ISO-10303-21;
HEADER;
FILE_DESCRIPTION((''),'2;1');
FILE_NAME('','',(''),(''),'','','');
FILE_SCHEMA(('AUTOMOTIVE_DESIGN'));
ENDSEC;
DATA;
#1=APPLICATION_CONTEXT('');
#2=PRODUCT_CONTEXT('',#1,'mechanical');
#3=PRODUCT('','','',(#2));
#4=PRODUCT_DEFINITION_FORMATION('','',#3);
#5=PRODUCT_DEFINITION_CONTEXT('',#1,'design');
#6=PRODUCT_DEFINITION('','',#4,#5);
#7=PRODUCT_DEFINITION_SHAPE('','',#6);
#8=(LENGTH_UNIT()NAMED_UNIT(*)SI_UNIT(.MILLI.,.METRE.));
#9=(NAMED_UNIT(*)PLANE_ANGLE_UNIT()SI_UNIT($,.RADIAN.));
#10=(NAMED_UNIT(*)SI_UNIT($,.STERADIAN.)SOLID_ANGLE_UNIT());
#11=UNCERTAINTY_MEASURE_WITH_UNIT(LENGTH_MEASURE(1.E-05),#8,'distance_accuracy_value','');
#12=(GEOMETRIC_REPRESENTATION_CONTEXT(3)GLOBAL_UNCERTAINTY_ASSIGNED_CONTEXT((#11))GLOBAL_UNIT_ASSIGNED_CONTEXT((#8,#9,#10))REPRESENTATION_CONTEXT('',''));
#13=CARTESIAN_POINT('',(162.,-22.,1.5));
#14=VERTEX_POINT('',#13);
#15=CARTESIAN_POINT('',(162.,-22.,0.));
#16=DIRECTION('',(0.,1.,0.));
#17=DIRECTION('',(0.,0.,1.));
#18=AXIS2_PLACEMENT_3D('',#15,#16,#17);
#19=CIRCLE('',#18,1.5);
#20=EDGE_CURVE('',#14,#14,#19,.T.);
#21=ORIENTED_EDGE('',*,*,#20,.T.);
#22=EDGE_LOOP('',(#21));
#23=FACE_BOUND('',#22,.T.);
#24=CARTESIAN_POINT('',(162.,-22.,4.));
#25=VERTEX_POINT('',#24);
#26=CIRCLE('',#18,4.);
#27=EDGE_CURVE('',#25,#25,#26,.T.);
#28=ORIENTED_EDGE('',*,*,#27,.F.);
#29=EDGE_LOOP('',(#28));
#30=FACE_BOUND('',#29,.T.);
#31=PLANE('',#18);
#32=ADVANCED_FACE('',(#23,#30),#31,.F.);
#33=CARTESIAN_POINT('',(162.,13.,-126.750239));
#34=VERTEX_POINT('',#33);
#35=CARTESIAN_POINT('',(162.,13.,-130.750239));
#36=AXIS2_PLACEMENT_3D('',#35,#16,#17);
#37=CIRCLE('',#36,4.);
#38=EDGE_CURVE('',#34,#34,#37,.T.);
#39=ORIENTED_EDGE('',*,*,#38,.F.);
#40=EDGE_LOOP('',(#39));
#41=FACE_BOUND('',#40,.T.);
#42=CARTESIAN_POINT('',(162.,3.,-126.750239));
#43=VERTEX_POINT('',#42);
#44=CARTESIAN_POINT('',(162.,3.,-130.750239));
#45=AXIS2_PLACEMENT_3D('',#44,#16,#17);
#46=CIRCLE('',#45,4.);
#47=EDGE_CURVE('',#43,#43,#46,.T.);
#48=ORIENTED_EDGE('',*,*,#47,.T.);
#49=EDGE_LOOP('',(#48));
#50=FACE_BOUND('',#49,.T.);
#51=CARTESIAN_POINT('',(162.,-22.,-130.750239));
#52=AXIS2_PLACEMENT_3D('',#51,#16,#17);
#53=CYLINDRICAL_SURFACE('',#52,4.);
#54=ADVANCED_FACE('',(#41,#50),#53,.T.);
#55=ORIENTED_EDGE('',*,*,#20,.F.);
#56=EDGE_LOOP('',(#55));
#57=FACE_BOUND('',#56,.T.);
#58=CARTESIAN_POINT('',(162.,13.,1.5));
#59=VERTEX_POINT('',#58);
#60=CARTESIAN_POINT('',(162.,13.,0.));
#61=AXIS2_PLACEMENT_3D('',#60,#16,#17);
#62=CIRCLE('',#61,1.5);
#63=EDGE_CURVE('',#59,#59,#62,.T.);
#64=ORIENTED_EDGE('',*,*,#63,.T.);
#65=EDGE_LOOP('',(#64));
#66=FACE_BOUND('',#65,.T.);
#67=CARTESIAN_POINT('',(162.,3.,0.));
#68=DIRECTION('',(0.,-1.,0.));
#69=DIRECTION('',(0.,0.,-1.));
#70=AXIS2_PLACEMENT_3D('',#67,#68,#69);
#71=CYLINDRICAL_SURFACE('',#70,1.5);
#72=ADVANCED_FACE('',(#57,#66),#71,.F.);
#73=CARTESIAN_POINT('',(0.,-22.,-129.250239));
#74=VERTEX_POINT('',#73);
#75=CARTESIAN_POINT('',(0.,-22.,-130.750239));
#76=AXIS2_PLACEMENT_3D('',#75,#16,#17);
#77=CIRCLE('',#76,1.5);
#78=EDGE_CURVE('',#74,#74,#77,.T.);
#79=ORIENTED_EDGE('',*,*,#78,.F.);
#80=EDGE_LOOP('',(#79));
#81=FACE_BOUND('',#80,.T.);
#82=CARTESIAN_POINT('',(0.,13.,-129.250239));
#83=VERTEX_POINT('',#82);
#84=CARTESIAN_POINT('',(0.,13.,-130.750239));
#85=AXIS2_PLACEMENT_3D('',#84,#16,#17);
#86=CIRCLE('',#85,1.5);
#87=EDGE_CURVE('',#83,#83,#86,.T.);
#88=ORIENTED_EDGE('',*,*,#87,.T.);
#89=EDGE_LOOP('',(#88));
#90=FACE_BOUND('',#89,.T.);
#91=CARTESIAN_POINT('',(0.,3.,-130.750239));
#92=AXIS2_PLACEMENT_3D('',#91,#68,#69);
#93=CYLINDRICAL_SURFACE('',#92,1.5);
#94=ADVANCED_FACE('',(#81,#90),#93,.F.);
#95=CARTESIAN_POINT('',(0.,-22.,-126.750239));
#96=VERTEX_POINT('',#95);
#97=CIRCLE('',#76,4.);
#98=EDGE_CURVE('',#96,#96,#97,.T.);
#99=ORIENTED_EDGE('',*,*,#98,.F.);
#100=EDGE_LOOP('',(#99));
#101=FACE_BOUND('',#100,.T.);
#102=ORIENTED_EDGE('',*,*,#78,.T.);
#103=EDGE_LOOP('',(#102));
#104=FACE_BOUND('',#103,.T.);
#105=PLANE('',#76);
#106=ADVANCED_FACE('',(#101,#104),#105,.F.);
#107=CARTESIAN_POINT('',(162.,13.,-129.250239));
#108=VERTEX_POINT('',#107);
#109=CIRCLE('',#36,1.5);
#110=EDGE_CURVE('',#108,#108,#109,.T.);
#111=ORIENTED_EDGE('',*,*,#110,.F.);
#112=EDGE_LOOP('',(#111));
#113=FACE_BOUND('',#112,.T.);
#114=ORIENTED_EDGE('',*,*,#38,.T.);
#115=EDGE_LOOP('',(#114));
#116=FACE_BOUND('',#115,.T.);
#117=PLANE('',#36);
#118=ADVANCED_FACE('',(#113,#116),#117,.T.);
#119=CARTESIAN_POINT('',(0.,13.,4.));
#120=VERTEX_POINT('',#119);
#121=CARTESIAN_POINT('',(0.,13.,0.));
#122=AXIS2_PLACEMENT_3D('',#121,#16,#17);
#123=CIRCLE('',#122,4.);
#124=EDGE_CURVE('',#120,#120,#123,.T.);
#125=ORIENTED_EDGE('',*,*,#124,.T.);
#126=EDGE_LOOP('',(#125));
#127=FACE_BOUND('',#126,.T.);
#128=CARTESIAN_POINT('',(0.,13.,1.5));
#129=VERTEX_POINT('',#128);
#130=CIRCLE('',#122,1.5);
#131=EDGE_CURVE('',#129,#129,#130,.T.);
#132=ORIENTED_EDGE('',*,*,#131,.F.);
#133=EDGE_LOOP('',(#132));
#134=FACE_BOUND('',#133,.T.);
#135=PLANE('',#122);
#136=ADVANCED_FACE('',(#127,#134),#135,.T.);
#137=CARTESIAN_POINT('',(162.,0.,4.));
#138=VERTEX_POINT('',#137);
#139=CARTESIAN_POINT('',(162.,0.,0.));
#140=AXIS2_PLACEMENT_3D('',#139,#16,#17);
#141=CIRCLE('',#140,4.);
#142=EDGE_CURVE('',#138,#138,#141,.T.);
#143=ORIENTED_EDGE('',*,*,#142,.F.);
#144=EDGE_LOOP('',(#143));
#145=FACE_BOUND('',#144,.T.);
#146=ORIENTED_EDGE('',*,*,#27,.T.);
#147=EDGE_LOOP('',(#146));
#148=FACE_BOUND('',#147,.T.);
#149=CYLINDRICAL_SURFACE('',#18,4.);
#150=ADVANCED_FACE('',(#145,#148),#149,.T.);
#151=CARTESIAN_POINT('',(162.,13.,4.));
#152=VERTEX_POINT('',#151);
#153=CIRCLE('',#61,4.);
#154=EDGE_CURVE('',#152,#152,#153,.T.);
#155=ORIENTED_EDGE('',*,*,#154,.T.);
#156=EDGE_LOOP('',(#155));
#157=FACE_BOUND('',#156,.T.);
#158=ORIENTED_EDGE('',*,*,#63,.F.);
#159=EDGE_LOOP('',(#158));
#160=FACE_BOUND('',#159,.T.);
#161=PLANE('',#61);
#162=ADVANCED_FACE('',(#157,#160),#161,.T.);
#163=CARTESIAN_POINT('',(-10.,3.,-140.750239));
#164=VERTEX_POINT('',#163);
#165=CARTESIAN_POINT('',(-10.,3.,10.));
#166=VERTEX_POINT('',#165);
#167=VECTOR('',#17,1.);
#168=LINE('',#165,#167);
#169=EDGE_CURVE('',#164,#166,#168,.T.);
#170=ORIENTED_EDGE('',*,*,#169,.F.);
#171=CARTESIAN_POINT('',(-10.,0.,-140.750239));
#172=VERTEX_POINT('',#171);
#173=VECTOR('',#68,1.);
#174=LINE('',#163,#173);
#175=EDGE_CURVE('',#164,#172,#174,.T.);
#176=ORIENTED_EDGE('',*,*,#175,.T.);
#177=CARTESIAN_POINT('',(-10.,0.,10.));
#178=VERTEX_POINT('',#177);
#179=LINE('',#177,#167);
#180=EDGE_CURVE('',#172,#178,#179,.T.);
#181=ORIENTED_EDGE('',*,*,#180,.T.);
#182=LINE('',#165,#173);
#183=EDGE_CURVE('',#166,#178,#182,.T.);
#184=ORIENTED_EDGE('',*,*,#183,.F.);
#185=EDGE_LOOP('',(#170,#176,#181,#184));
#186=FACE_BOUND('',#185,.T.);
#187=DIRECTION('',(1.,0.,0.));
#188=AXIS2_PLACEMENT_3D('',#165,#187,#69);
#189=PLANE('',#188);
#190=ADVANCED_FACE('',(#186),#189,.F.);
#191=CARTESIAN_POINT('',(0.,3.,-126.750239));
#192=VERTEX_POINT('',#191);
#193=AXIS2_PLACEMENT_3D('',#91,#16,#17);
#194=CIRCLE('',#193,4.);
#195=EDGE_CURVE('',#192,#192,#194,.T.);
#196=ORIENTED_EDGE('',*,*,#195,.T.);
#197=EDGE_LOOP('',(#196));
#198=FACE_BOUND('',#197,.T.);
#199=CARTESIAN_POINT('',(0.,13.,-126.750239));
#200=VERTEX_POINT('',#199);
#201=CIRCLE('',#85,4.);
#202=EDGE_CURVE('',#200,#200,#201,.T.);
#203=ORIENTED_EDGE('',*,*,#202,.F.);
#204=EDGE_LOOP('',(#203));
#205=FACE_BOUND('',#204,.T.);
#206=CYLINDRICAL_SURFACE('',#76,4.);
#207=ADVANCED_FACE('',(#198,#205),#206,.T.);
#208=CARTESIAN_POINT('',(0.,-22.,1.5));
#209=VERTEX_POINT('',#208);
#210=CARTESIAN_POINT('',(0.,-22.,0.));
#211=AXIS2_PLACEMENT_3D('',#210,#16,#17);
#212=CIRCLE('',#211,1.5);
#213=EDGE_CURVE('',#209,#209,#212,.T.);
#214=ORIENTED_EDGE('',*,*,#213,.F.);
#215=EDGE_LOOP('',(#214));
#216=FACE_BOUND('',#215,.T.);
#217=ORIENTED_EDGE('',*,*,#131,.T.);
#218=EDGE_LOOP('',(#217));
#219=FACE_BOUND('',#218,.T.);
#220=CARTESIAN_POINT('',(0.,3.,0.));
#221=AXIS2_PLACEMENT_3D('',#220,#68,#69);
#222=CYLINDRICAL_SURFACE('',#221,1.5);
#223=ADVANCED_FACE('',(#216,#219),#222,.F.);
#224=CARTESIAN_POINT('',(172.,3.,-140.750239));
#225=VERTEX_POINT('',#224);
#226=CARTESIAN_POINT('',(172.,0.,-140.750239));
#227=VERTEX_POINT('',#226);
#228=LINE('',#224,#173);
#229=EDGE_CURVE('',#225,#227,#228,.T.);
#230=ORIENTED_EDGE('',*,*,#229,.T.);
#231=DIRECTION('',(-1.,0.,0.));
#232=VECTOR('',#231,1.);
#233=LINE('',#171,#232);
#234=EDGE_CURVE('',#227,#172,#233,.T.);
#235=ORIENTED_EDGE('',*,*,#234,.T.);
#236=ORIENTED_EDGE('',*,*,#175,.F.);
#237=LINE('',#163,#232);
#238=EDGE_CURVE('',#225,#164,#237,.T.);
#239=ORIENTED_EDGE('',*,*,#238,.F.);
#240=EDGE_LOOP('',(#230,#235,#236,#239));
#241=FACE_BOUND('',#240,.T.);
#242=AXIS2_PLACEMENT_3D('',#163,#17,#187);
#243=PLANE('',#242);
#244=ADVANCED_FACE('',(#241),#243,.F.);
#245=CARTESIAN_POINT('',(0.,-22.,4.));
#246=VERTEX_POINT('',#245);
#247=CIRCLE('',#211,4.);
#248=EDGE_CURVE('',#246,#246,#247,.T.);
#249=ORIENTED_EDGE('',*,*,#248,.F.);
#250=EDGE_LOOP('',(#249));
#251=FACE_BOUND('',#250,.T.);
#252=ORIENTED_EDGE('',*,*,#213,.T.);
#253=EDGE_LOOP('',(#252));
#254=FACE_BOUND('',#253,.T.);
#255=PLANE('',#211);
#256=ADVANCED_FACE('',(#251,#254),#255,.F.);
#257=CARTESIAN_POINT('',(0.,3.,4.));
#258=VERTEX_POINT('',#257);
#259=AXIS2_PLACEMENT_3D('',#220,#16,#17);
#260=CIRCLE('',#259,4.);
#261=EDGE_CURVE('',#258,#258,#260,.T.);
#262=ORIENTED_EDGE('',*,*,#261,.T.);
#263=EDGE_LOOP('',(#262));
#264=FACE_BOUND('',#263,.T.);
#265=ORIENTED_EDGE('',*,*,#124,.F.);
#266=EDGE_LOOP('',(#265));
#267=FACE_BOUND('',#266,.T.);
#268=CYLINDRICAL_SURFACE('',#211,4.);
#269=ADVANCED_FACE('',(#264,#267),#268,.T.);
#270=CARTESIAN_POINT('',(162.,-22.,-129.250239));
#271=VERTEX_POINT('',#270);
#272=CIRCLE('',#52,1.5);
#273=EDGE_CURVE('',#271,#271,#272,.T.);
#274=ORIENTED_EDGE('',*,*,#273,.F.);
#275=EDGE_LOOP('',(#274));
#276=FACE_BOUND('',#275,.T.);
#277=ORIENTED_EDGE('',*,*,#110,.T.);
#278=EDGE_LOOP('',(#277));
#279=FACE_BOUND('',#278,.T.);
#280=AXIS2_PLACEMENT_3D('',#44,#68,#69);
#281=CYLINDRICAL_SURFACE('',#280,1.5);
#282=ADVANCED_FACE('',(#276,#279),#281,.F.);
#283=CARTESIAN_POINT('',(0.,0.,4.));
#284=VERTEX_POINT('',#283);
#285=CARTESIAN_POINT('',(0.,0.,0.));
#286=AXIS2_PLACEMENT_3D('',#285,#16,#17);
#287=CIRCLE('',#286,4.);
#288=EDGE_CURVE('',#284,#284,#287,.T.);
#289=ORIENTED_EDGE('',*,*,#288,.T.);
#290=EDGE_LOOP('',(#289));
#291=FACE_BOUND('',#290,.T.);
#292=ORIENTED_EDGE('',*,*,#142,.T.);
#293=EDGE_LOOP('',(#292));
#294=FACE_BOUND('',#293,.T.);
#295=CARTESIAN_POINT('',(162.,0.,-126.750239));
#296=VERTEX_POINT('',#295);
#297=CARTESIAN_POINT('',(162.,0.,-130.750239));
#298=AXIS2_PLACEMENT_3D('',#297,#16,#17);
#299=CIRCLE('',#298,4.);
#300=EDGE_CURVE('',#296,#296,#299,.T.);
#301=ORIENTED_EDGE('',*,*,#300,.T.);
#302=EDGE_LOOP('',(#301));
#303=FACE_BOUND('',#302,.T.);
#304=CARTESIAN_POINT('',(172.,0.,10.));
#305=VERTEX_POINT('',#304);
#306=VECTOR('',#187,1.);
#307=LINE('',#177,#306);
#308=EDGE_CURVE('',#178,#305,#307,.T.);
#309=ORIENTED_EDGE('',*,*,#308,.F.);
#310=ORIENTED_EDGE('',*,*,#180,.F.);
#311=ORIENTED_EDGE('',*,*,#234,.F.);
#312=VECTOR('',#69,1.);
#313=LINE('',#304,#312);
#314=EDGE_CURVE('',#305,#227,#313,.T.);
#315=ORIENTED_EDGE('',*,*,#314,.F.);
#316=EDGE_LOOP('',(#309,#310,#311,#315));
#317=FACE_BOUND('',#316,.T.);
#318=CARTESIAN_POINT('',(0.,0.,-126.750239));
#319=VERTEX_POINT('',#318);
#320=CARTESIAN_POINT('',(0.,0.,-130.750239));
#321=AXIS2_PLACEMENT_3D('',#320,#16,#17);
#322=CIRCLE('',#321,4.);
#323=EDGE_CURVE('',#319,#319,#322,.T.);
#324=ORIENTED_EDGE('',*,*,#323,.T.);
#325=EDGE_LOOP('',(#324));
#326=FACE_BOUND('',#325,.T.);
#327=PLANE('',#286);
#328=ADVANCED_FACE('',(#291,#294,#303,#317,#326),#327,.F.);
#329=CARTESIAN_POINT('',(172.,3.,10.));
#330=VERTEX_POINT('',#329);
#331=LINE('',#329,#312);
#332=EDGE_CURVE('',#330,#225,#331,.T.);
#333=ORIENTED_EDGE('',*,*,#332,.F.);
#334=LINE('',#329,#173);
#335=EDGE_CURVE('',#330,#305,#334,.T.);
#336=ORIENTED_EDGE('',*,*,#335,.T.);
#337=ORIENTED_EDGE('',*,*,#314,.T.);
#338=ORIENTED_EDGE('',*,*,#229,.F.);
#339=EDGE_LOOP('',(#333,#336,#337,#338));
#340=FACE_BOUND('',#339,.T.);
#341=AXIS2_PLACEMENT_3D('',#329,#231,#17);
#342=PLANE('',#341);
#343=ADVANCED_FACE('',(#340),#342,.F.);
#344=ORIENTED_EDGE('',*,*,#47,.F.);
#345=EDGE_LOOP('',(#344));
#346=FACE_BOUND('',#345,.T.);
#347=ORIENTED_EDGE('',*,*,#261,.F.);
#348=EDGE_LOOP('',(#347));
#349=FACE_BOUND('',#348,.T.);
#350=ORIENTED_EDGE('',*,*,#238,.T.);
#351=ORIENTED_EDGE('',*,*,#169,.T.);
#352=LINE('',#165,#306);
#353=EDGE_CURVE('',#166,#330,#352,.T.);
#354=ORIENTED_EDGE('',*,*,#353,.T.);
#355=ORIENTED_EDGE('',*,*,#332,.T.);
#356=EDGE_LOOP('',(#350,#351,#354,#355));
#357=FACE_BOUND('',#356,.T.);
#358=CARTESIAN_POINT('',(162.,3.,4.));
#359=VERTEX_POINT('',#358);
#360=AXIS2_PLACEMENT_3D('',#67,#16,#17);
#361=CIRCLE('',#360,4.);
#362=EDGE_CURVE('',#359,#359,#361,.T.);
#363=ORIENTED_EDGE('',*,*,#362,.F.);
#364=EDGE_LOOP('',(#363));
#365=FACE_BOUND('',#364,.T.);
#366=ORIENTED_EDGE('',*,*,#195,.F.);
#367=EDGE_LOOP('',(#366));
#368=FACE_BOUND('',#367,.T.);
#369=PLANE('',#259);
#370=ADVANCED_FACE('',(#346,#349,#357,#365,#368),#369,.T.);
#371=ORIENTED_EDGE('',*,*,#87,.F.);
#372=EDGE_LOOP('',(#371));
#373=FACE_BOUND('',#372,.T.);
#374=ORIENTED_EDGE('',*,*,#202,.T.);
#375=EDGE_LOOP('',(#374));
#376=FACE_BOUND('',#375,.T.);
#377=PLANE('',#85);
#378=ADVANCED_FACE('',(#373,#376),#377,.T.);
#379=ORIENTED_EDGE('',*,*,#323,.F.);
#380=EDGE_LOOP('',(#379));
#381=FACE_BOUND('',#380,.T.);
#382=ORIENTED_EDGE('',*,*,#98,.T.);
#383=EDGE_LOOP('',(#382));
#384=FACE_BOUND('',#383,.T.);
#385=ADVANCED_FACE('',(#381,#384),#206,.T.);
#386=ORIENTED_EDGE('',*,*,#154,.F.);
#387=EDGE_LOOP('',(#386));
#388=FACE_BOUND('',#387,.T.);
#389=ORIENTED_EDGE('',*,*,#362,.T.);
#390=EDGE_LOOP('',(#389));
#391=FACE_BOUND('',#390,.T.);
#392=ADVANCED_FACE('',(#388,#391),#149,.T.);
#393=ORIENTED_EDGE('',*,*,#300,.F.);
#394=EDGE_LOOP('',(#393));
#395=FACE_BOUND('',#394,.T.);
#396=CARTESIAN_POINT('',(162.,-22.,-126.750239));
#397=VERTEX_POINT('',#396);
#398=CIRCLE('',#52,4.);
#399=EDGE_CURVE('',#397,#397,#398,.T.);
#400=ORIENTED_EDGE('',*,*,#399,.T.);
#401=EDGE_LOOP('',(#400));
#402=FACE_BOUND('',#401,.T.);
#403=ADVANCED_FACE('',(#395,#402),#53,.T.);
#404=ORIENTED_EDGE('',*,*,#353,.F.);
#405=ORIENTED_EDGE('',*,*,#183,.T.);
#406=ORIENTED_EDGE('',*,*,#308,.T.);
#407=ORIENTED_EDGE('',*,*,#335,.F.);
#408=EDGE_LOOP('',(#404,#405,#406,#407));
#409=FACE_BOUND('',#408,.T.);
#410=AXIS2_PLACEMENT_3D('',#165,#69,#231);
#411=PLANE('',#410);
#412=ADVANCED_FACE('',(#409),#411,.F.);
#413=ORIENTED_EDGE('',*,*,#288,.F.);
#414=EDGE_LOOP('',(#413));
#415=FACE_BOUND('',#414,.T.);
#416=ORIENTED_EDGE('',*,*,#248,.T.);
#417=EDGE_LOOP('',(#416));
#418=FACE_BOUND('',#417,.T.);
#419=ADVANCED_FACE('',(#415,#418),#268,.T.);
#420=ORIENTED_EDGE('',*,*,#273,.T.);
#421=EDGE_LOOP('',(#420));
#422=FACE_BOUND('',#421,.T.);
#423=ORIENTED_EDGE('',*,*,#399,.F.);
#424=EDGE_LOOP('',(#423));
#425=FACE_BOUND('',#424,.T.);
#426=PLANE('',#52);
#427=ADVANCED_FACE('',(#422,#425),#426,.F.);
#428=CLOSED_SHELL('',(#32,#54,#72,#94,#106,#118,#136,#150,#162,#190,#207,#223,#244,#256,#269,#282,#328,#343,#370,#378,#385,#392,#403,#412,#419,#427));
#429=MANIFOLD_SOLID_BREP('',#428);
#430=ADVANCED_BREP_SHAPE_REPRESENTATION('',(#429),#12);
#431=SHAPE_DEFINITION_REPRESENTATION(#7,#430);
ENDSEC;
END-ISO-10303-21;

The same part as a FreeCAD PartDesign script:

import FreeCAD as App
import Part
import Sketcher


def add_polygon(sketch, points):
    """Adds a closed chain of lines whose ends are joined by coincident constraints."""
    first, n = sketch.GeometryCount, len(points)
    for a, b in zip(points, points[1:] + points[:1]):
        sketch.addGeometry(Part.LineSegment(App.Vector(*a, 0), App.Vector(*b, 0)), False)
    for i in range(n):
        sketch.addConstraint(Sketcher.Constraint("Coincident", first + i, 2, first + (i + 1) % n, 1))

doc = App.newDocument("Part")
body = doc.addObject("PartDesign::Body", "Body")

# Sketch on XZ plane
sketch1 = body.newObject("Sketcher::SketchObject", "Sketch")
sketch1.AttachmentSupport = (doc.getObject("XZ_Plane"), [""])
sketch1.MapMode = "FlatFace"
add_polygon(sketch1, [(-10, -140.8), (-10, 10), (172, 10), (172, -140.8)])  # lines 0-3
sketch1.addGeometry(Part.Circle(App.Vector(0, 0, 0), App.Vector(0, 0, 1), 1.5), False)  # 4
sketch1.addGeometry(Part.Circle(App.Vector(162, 0, 0), App.Vector(0, 0, 1), 1.5), False)  # 5
sketch1.addGeometry(Part.Circle(App.Vector(0, -130.8, 0), App.Vector(0, 0, 1), 1.5), False)  # 6
sketch1.addGeometry(Part.Circle(App.Vector(162, -130.8, 0), App.Vector(0, 0, 1), 1.5), False)  # 7
sketch1.addConstraint([
    Sketcher.Constraint("Vertical", 0),
    Sketcher.Constraint("Horizontal", 1),
    Sketcher.Constraint("Vertical", 2),
    Sketcher.Constraint("Horizontal", 3),
    Sketcher.Constraint("Coincident", 4, 3, -1, 1),
    Sketcher.Constraint("Equal", 4, 5),
    Sketcher.Constraint("Equal", 5, 6),
    Sketcher.Constraint("Equal", 6, 7),
    Sketcher.Constraint("PointOnObject", 5, 3, -1),
    Sketcher.Constraint("PointOnObject", 6, 3, -2),
    Sketcher.Constraint("Horizontal", 6, 3, 7, 3),
    Sketcher.Constraint("Vertical", 5, 3, 7, 3),
    Sketcher.Constraint("Diameter", 4, 3.0),
    Sketcher.Constraint("DistanceX", 1, 1, 1, 2, 182.0),
    Sketcher.Constraint("DistanceX", -1, 1, 5, 3, 162.0),
    Sketcher.Constraint("DistanceX", 0, 2, -1, 1, 10.0),
    Sketcher.Constraint("DistanceY", -1, 1, 0, 2, 10.0),
    Sketcher.Constraint("DistanceY", 2, 2, 7, 3, 10.0),
    Sketcher.Constraint("DistanceY", 0, 1, 0, 2, 150.750239),
])
pad1 = body.newObject("PartDesign::Pad", "Pad")
pad1.Profile = sketch1
pad1.Length = 3
pad1.Reversed = True

# Sketch on XZ plane
sketch2 = body.newObject("Sketcher::SketchObject", "Sketch001")
sketch2.AttachmentSupport = (doc.getObject("XZ_Plane"), [""])
sketch2.MapMode = "FlatFace"
sketch2.AttachmentOffset = App.Placement(App.Vector(0, 0, -3), App.Rotation())
sketch2.addGeometry([
    Part.Circle(App.Vector(0, -130.8, 0), App.Vector(0, 0, 1), 4),  # 0
    Part.Circle(App.Vector(0, -130.8, 0), App.Vector(0, 0, 1), 1.5),  # 1
    Part.Circle(App.Vector(162, -130.8, 0), App.Vector(0, 0, 1), 4),  # 2
    Part.Circle(App.Vector(162, -130.8, 0), App.Vector(0, 0, 1), 1.5),  # 3
    Part.Circle(App.Vector(162, 0, 0), App.Vector(0, 0, 1), 4),  # 4
    Part.Circle(App.Vector(162, 0, 0), App.Vector(0, 0, 1), 1.5),  # 5
    Part.Circle(App.Vector(0, 0, 0), App.Vector(0, 0, 1), 4),  # 6
    Part.Circle(App.Vector(0, 0, 0), App.Vector(0, 0, 1), 1.5),  # 7
], False)
sketch2.addConstraint([
    Sketcher.Constraint("Coincident", 6, 3, -1, 1),
    Sketcher.Constraint("Coincident", 7, 3, -1, 1),
    Sketcher.Constraint("Coincident", 1, 3, 0, 3),
    Sketcher.Constraint("Coincident", 3, 3, 2, 3),
    Sketcher.Constraint("Coincident", 5, 3, 4, 3),
    Sketcher.Constraint("Equal", 0, 2),
    Sketcher.Constraint("Equal", 1, 3),
    Sketcher.Constraint("Equal", 2, 4),
    Sketcher.Constraint("Equal", 3, 5),
    Sketcher.Constraint("Equal", 4, 6),
    Sketcher.Constraint("Equal", 5, 7),
    Sketcher.Constraint("PointOnObject", 0, 3, -2),
    Sketcher.Constraint("PointOnObject", 4, 3, -1),
    Sketcher.Constraint("Horizontal", 1, 3, 2, 3),
    Sketcher.Constraint("Vertical", 3, 3, 4, 3),
    Sketcher.Constraint("Diameter", 0, 8.0),
    Sketcher.Constraint("Diameter", 1, 3.0),
    Sketcher.Constraint("DistanceX", -1, 1, 2, 3, 162.0),
    Sketcher.Constraint("DistanceY", 0, 3, -1, 1, 130.750239),
])
pad2 = body.newObject("PartDesign::Pad", "Pad001")
pad2.Profile = sketch2
pad2.Type = "TwoLengths"
pad2.Length = 10
pad2.Length2 = 25
pad2.Reversed = True

doc.recompute()
